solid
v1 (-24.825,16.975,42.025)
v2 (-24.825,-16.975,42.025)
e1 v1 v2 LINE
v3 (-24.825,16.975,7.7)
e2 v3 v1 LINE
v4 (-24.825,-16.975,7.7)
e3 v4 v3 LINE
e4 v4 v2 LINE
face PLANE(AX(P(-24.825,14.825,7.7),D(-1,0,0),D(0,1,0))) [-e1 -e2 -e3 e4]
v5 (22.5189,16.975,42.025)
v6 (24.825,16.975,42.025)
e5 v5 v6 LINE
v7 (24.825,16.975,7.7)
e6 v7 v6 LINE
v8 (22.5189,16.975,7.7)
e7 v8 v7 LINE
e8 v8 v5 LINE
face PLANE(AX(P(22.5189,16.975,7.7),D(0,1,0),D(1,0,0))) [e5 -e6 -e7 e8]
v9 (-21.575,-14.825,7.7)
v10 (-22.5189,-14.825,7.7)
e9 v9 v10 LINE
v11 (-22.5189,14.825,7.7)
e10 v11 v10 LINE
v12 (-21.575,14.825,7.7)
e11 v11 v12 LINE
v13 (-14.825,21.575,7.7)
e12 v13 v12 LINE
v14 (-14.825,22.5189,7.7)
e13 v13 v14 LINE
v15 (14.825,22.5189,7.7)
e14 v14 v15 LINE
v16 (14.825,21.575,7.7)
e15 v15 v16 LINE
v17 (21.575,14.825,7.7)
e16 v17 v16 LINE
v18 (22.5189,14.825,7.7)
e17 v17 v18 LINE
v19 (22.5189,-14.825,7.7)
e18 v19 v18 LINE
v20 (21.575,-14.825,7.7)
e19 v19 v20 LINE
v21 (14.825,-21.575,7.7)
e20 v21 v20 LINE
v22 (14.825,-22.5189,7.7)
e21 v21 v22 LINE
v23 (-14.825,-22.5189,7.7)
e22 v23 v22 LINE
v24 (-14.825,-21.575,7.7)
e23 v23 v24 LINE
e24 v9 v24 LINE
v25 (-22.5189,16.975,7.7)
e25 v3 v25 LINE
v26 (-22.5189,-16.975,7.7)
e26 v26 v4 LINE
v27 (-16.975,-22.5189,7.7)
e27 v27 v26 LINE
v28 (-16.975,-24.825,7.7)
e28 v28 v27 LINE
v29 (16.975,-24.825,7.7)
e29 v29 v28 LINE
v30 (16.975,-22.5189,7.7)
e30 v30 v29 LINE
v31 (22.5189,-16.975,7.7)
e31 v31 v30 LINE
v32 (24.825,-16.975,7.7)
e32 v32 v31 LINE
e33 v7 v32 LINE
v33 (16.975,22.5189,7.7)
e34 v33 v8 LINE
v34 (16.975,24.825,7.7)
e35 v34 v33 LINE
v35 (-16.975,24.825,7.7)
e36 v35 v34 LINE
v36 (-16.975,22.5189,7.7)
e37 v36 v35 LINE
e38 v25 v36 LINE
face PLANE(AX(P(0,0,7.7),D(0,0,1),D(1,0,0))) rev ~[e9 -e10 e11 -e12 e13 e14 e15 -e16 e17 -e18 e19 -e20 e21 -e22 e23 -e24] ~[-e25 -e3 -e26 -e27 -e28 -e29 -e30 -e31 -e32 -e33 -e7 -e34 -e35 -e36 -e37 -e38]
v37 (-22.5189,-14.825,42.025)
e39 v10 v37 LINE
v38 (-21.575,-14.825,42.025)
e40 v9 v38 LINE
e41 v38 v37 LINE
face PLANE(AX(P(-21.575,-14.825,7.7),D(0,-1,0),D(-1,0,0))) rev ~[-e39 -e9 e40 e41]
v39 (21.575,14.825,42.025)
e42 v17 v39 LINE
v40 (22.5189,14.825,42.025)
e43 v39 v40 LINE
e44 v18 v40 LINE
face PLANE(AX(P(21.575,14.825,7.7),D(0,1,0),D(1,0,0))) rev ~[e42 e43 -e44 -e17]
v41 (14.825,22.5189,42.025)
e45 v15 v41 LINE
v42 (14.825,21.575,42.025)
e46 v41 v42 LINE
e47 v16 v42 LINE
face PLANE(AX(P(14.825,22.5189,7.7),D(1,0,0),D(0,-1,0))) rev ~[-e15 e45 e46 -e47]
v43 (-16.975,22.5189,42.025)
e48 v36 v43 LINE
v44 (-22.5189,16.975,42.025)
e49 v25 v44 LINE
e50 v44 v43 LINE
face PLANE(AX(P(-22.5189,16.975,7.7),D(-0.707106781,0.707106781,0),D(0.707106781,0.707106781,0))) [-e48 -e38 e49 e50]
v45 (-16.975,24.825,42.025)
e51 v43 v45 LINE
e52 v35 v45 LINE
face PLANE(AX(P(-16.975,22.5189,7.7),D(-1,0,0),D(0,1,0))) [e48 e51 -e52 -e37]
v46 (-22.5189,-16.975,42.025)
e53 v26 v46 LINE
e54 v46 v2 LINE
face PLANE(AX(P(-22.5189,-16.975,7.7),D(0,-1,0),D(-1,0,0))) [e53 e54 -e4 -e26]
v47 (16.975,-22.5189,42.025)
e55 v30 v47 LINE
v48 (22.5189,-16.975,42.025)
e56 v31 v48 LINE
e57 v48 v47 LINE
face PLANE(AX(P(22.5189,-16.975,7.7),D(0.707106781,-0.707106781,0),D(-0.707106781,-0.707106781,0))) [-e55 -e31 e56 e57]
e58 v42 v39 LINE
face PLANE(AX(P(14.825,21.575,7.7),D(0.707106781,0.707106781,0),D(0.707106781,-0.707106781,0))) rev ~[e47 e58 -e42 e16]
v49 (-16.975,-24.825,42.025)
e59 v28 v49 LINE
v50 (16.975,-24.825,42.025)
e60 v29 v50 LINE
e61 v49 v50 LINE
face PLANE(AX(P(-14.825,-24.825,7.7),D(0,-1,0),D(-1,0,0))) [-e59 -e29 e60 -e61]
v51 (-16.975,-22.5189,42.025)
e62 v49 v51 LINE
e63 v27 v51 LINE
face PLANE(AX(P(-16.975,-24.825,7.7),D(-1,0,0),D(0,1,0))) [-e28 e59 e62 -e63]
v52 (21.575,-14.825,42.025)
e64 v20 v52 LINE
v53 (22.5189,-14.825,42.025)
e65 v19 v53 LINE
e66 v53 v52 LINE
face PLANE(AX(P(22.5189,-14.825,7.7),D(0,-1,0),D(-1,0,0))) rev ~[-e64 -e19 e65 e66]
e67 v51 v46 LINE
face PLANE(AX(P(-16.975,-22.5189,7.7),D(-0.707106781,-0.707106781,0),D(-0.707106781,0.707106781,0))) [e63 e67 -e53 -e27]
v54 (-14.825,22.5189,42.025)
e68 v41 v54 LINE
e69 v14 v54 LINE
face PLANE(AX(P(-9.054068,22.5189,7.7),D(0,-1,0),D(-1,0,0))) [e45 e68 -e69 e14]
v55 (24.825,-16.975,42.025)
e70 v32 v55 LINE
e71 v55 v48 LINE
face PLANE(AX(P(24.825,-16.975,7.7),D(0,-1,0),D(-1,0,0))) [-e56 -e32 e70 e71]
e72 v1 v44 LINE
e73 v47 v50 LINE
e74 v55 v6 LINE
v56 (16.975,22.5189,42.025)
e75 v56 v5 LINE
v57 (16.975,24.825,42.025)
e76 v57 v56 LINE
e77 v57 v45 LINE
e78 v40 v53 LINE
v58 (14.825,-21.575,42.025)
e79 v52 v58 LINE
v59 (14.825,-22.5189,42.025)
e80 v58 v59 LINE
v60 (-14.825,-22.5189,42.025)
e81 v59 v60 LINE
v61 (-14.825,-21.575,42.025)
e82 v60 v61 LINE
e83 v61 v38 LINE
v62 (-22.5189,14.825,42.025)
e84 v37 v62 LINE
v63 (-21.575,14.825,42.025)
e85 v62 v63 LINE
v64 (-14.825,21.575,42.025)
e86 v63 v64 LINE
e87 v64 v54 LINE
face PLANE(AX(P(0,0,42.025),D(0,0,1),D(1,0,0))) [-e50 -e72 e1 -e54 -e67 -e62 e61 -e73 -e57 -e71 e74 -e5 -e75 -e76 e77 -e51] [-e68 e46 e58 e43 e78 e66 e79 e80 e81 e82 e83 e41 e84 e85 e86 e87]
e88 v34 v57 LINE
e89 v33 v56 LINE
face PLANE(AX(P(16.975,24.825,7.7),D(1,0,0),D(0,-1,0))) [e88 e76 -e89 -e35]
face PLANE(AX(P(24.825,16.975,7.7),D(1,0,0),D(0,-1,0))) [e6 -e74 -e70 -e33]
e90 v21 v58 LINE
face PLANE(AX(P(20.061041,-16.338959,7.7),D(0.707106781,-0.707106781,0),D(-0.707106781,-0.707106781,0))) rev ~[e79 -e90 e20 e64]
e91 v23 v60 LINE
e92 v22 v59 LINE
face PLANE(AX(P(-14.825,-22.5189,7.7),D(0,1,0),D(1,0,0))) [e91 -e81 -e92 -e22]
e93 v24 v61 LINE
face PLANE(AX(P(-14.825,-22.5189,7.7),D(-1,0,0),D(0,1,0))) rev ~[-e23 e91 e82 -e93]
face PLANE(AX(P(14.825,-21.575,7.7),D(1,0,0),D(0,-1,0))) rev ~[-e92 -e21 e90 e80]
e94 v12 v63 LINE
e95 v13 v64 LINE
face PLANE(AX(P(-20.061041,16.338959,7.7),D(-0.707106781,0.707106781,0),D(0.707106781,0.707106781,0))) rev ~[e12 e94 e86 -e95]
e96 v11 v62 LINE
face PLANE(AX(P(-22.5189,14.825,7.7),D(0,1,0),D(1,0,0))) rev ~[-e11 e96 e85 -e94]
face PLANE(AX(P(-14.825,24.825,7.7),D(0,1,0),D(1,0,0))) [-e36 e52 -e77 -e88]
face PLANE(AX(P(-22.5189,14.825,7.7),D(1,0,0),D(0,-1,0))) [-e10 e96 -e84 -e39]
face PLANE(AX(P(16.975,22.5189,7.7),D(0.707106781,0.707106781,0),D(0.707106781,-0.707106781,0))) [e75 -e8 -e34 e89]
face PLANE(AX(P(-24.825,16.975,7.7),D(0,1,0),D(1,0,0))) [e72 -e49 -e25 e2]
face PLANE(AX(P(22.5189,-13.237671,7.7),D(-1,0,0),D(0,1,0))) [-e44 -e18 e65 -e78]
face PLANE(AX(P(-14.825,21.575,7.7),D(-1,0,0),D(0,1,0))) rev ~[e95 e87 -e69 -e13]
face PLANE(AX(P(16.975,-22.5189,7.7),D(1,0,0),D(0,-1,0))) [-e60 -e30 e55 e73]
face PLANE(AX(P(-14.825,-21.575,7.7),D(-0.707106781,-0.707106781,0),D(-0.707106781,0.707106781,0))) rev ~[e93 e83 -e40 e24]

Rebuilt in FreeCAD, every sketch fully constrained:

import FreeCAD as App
import Part
import Sketcher
from FreeCAD import Vector
Q = App.Units.Quantity

doc = App.newDocument("Part")
params = doc.addObject("Spreadsheet::Sheet", "Params")
for row, (alias, value) in enumerate([
    ("sketch1_width", "33.95 mm"),
    ("sketch1_width2", "29.65 mm"),
    ("pad1_length", "34.325 mm"),
], start=1):
    params.set(f"A{row}", alias)
    params.set(f"B{row}", "=" + value)
    params.setAlias(f"B{row}", alias)

body = doc.addObject("PartDesign::Body", "Body")

# Sketch on XY plane
sketch1 = body.newObject("Sketcher::SketchObject", "Sketch")
sketch1.AttachmentSupport = (doc.getObject("XY_Plane"), [""])
sketch1.MapMode = "FlatFace"
sketch1.AttachmentOffset = App.Placement(Vector(0, 0, 7.7), App.Rotation())
sketch1.addGeometry([
    Part.LineSegment(Vector(-17, 24.8, 0), Vector(-17, 22.5, 0)),  # 0
    Part.LineSegment(Vector(-17, 22.5, 0), Vector(-22.5, 17, 0)),  # 1
    Part.LineSegment(Vector(-22.5, 17, 0), Vector(-24.8, 17, 0)),  # 2
    Part.LineSegment(Vector(-24.8, 17, 0), Vector(-24.8, -17, 0)),  # 3
    Part.LineSegment(Vector(-24.8, -17, 0), Vector(-22.5, -17, 0)),  # 4
    Part.LineSegment(Vector(-22.5, -17, 0), Vector(-17, -22.5, 0)),  # 5
    Part.LineSegment(Vector(-17, -22.5, 0), Vector(-17, -24.8, 0)),  # 6
    Part.LineSegment(Vector(-17, -24.8, 0), Vector(17, -24.8, 0)),  # 7
    Part.LineSegment(Vector(17, -24.8, 0), Vector(17, -22.5, 0)),  # 8
    Part.LineSegment(Vector(17, -22.5, 0), Vector(22.5, -17, 0)),  # 9
    Part.LineSegment(Vector(22.5, -17, 0), Vector(24.8, -17, 0)),  # 10
    Part.LineSegment(Vector(24.8, -17, 0), Vector(24.8, 17, 0)),  # 11
    Part.LineSegment(Vector(24.8, 17, 0), Vector(22.5, 17, 0)),  # 12
    Part.LineSegment(Vector(22.5, 17, 0), Vector(17, 22.5, 0)),  # 13
    Part.LineSegment(Vector(17, 22.5, 0), Vector(17, 24.8, 0)),  # 14
    Part.LineSegment(Vector(17, 24.8, 0), Vector(-17, 24.8, 0)),  # 15
    Part.LineSegment(Vector(14.8, 22.5, 0), Vector(14.8, 21.6, 0)),  # 16
    Part.LineSegment(Vector(14.8, 21.6, 0), Vector(21.6, 14.8, 0)),  # 17
    Part.LineSegment(Vector(21.6, 14.8, 0), Vector(22.5, 14.8, 0)),  # 18
    Part.LineSegment(Vector(22.5, 14.8, 0), Vector(22.5, -14.8, 0)),  # 19
    Part.LineSegment(Vector(22.5, -14.8, 0), Vector(21.6, -14.8, 0)),  # 20
    Part.LineSegment(Vector(21.6, -14.8, 0), Vector(14.8, -21.6, 0)),  # 21
    Part.LineSegment(Vector(14.8, -21.6, 0), Vector(14.8, -22.5, 0)),  # 22
    Part.LineSegment(Vector(14.8, -22.5, 0), Vector(-14.8, -22.5, 0)),  # 23
    Part.LineSegment(Vector(-14.8, -22.5, 0), Vector(-14.8, -21.6, 0)),  # 24
    Part.LineSegment(Vector(-14.8, -21.6, 0), Vector(-21.6, -14.8, 0)),  # 25
    Part.LineSegment(Vector(-21.6, -14.8, 0), Vector(-22.5, -14.8, 0)),  # 26
    Part.LineSegment(Vector(-22.5, -14.8, 0), Vector(-22.5, 14.8, 0)),  # 27
    Part.LineSegment(Vector(-22.5, 14.8, 0), Vector(-21.6, 14.8, 0)),  # 28
    Part.LineSegment(Vector(-21.6, 14.8, 0), Vector(-14.8, 21.6, 0)),  # 29
    Part.LineSegment(Vector(-14.8, 21.6, 0), Vector(-14.8, 22.5, 0)),  # 30
    Part.LineSegment(Vector(-14.8, 22.5, 0), Vector(14.8, 22.5, 0)),  # 31
], False)
sketch1.addConstraint([
    Sketcher.Constraint("Coincident", 0, 2, 1, 1),
    Sketcher.Constraint("Coincident", 1, 2, 2, 1),
    Sketcher.Constraint("Coincident", 2, 2, 3, 1),
    Sketcher.Constraint("Coincident", 3, 2, 4, 1),
    Sketcher.Constraint("Coincident", 4, 2, 5, 1),
    Sketcher.Constraint("Coincident", 5, 2, 6, 1),
    Sketcher.Constraint("Coincident", 6, 2, 7, 1),
    Sketcher.Constraint("Coincident", 7, 2, 8, 1),
    Sketcher.Constraint("Coincident", 8, 2, 9, 1),
    Sketcher.Constraint("Coincident", 9, 2, 10, 1),
    Sketcher.Constraint("Coincident", 10, 2, 11, 1),
    Sketcher.Constraint("Coincident", 11, 2, 12, 1),
    Sketcher.Constraint("Coincident", 12, 2, 13, 1),
    Sketcher.Constraint("Coincident", 13, 2, 14, 1),
    Sketcher.Constraint("Coincident", 14, 2, 15, 1),
    Sketcher.Constraint("Coincident", 15, 2, 0, 1),
    Sketcher.Constraint("Coincident", 16, 2, 17, 1),
    Sketcher.Constraint("Coincident", 17, 2, 18, 1),
    Sketcher.Constraint("Coincident", 18, 2, 19, 1),
    Sketcher.Constraint("Coincident", 19, 2, 20, 1),
    Sketcher.Constraint("Coincident", 20, 2, 21, 1),
    Sketcher.Constraint("Coincident", 21, 2, 22, 1),
    Sketcher.Constraint("Coincident", 22, 2, 23, 1),
    Sketcher.Constraint("Coincident", 23, 2, 24, 1),
    Sketcher.Constraint("Coincident", 24, 2, 25, 1),
    Sketcher.Constraint("Coincident", 25, 2, 26, 1),
    Sketcher.Constraint("Coincident", 26, 2, 27, 1),
    Sketcher.Constraint("Coincident", 27, 2, 28, 1),
    Sketcher.Constraint("Coincident", 28, 2, 29, 1),
    Sketcher.Constraint("Coincident", 29, 2, 30, 1),
    Sketcher.Constraint("Coincident", 30, 2, 31, 1),
    Sketcher.Constraint("Coincident", 31, 2, 16, 1),
    Sketcher.Constraint("Vertical", 0),
    Sketcher.Constraint("Horizontal", 2),
    Sketcher.Constraint("Vertical", 3),
    Sketcher.Constraint("Horizontal", 4),
    Sketcher.Constraint("Vertical", 6),
    Sketcher.Constraint("Horizontal", 7),
    Sketcher.Constraint("Vertical", 8),
    Sketcher.Constraint("Horizontal", 10),
    Sketcher.Constraint("Vertical", 11),
    Sketcher.Constraint("Horizontal", 12),
    Sketcher.Constraint("Vertical", 14),
    Sketcher.Constraint("Horizontal", 15),
    Sketcher.Constraint("Vertical", 16),
    Sketcher.Constraint("Horizontal", 18),
    Sketcher.Constraint("Vertical", 19),
    Sketcher.Constraint("Horizontal", 20),
    Sketcher.Constraint("Vertical", 22),
    Sketcher.Constraint("Horizontal", 23),
    Sketcher.Constraint("Vertical", 24),
    Sketcher.Constraint("Horizontal", 26),
    Sketcher.Constraint("Vertical", 27),
    Sketcher.Constraint("Horizontal", 28),
    Sketcher.Constraint("Vertical", 30),
    Sketcher.Constraint("Horizontal", 31),
    Sketcher.Constraint("Symmetric", 0, 2, 8, 2, -1, 1),
    Sketcher.Constraint("Symmetric", 1, 2, 9, 2, -1, 1),
    Sketcher.Constraint("Symmetric", 3, 2, 11, 2, -1, 1),
    Sketcher.Constraint("Symmetric", 5, 2, 13, 2, -1, 1),
    Sketcher.Constraint("Symmetric", 16, 2, 24, 2, -1, 1),
    Sketcher.Constraint("Symmetric", 17, 2, 25, 2, -1, 1),
    Sketcher.Constraint("Symmetric", 19, 2, 27, 2, -1, 1),
    Sketcher.Constraint("Symmetric", 21, 2, 29, 2, -1, 1),
    Sketcher.Constraint("Symmetric", 5, 2, 8, 2, -2),
    Sketcher.Constraint("Symmetric", 4, 2, 9, 2, -2),
    Sketcher.Constraint("Symmetric", 21, 2, 24, 2, -2),
    Sketcher.Constraint("Symmetric", 20, 2, 25, 2, -2),
    Sketcher.Constraint("Perpendicular", 1, 5),
    Sketcher.Constraint("Perpendicular", 9, 13),
    Sketcher.Constraint("Parallel", 13, 17),
    Sketcher.Constraint("Perpendicular", 25, 29),
    Sketcher.Constraint("Horizontal", 8, 2, 22, 2),
    Sketcher.Constraint("Horizontal", 13, 2, 30, 2),
    Sketcher.Constraint("Vertical", 12, 2, 18, 2),
    Sketcher.Constraint("Equal", 12, 0),
    Sketcher.Constraint("Equal", 15, 3),
    Sketcher.Constraint("Equal", 0, 6),
    Sketcher.Constraint("Equal", 28, 16),
    Sketcher.Constraint("DistanceX", 16, 2, 11, 2, Q("10 mm")),
    Sketcher.Constraint("DistanceX", 16, 2, 17, 2, Q("6.75 mm")),
    Sketcher.Constraint("DistanceX", 7, 1, 7, 2, Q("33.95 mm")),
    Sketcher.Constraint("DistanceX", 23, 2, 23, 1, Q("29.65 mm")),
    Sketcher.Constraint("DistanceX", 2, 2, 2, 1, Q("2.306 mm")),
])
sketch1.setExpression("Constraints[81]", "Params.sketch1_width")
sketch1.setExpression("Constraints[82]", "Params.sketch1_width2")
pad1 = body.newObject("PartDesign::Pad", "Pad")
pad1.Profile = sketch1
pad1.setExpression("Length", "Params.pad1_length")

doc.recompute()
